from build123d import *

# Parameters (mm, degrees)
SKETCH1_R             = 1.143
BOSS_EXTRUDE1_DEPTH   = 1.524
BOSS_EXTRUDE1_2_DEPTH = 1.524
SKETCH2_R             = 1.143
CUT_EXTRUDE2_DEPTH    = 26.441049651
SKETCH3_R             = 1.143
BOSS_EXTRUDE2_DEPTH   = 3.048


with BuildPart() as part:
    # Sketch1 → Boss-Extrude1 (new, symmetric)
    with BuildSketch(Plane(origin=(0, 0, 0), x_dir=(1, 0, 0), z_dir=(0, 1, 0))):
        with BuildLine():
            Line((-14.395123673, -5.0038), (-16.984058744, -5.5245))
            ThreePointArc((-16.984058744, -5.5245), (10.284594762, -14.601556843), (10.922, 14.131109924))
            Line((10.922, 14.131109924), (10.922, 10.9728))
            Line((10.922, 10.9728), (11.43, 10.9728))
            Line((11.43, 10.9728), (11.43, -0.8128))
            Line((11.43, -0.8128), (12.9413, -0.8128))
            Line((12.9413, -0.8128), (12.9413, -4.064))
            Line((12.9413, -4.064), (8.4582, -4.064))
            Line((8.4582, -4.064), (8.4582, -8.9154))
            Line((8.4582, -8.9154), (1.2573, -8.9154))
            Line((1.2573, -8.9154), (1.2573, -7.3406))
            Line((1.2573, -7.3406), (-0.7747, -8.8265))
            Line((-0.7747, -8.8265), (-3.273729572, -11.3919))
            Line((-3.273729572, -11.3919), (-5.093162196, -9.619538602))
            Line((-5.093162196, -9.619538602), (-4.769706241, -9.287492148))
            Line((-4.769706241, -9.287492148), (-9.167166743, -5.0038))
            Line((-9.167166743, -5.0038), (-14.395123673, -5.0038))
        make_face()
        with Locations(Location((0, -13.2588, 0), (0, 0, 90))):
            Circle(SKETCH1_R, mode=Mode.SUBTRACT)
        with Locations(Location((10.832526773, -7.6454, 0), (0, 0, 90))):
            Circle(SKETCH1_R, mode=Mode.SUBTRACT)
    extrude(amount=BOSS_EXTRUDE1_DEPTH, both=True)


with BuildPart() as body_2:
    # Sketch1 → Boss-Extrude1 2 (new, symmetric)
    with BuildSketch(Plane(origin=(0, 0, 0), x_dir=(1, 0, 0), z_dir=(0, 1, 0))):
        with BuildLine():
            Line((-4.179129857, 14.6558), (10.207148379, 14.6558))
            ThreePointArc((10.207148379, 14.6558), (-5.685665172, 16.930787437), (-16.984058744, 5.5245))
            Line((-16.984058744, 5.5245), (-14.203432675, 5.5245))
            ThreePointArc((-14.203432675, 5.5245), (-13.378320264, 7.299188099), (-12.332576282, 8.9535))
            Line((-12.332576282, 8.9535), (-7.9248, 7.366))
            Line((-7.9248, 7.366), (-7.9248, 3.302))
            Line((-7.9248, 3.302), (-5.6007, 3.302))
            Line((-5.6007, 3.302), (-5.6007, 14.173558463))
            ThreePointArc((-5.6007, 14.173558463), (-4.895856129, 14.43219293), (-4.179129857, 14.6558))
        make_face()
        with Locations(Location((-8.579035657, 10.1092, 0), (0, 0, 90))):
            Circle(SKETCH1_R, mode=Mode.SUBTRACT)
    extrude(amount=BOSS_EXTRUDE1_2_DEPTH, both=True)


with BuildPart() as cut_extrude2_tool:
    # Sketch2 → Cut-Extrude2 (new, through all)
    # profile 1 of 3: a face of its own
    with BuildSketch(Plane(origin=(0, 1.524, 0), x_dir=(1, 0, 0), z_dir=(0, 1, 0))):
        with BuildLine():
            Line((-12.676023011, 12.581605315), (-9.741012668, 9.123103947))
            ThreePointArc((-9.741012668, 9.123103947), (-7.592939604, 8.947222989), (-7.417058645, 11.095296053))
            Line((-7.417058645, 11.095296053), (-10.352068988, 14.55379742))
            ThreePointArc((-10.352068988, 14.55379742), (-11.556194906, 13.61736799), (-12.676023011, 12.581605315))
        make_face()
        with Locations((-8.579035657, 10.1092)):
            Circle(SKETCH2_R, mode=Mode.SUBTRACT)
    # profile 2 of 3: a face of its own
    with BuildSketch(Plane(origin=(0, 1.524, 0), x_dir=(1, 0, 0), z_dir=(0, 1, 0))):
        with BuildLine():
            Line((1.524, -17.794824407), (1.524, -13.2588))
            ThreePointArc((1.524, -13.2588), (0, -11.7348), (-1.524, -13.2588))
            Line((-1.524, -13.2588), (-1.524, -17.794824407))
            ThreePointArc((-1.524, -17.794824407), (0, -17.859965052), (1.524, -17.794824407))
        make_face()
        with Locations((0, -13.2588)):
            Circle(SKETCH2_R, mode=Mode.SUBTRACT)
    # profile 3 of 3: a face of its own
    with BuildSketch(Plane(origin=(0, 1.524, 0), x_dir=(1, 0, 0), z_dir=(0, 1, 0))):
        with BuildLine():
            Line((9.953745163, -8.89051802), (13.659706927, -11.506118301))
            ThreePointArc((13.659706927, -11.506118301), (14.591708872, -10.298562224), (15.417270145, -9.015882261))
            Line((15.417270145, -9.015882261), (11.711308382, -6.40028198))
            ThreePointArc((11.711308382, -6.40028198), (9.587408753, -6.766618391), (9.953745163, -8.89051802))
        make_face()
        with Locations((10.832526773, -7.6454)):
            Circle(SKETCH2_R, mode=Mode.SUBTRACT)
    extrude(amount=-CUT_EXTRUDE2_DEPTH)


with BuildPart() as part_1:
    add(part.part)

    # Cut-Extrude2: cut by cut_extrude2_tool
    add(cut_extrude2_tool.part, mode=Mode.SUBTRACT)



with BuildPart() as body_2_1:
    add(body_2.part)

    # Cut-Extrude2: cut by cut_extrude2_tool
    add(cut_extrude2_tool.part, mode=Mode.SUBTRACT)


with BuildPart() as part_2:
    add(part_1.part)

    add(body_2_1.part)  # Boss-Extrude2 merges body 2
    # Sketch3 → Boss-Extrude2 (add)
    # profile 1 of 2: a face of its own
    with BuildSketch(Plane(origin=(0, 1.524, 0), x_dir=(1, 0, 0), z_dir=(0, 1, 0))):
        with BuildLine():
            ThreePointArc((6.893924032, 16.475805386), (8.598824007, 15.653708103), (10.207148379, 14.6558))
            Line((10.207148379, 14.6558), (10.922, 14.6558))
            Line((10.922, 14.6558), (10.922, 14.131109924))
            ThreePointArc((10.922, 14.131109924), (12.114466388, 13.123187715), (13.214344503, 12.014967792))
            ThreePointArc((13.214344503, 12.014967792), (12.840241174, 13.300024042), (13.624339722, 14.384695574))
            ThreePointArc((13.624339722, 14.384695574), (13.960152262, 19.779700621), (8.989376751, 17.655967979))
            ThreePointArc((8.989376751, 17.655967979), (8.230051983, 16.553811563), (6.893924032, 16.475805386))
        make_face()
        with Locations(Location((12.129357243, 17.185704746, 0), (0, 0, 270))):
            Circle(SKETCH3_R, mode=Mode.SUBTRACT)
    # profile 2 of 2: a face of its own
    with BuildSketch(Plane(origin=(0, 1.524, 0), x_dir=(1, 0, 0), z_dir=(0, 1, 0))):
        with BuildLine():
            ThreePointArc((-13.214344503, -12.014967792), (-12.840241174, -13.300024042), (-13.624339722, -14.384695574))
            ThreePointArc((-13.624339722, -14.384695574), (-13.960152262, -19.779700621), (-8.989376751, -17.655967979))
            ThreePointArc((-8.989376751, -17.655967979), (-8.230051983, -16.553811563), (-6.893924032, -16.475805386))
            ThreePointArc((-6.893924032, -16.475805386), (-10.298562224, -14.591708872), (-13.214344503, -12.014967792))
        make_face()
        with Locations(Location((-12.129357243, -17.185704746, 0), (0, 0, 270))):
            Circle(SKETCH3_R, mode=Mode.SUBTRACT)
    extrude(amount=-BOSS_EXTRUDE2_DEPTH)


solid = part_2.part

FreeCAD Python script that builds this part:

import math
import FreeCAD as App
import Part
import Sketcher

V = App.Vector
Q = App.Units.Quantity

doc = App.newDocument("Part")
body = doc.addObject("PartDesign::Body", "Body")

sketch1 = body.newObject("Sketcher::SketchObject", "Sketch")
sketch1.AttachmentSupport = (doc.getObject("XZ_Plane"), [""])
sketch1.MapMode = "FlatFace"
sketch1.addGeometry([
    Part.LineSegment(V(-14.4, 5, 0), V(-16.98, 5.52, 0)),
    Part.ArcOfCircle(Part.Circle(V(0, 0, 0), V(0, 0, 1), 17.86), math.radians(-52), math.radians(162)),
    Part.LineSegment(V(10.92, -14.13, 0), V(10.92, -10.97, 0)),
    Part.LineSegment(V(10.92, -10.97, 0), V(11.43, -10.97, 0)),
    Part.LineSegment(V(11.43, -10.97, 0), V(11.43, 0.81, 0)),
    Part.LineSegment(V(11.43, 0.81, 0), V(12.94, 0.81, 0)),
    Part.LineSegment(V(12.94, 0.81, 0), V(12.94, 4.06, 0)),
    Part.LineSegment(V(12.94, 4.06, 0), V(8.46, 4.06, 0)),
    Part.LineSegment(V(8.46, 4.06, 0), V(8.46, 8.92, 0)),
    Part.LineSegment(V(8.46, 8.92, 0), V(1.26, 8.92, 0)),
    Part.LineSegment(V(1.26, 8.92, 0), V(1.26, 7.34, 0)),
    Part.LineSegment(V(1.26, 7.34, 0), V(-0.77, 8.83, 0)),
    Part.LineSegment(V(-0.77, 8.83, 0), V(-3.27, 11.39, 0)),
    Part.LineSegment(V(-3.27, 11.39, 0), V(-5.09, 9.62, 0)),
    Part.LineSegment(V(-5.09, 9.62, 0), V(-4.77, 9.29, 0)),
    Part.LineSegment(V(-4.77, 9.29, 0), V(-9.17, 5, 0)),
    Part.LineSegment(V(-9.17, 5, 0), V(-14.4, 5, 0)),
    Part.Circle(V(0, 13.26, 0), V(0, 0, 1), 1.14),
    Part.Circle(V(10.83, 7.65, 0), V(0, 0, 1), 1.14),
], False)
sketch1.addConstraint([
    Sketcher.Constraint("Coincident", 0, 2, 1, 2),
    Sketcher.Constraint("Coincident", 1, 1, 2, 1),
    Sketcher.Constraint("Coincident", 2, 2, 3, 1),
    Sketcher.Constraint("Coincident", 3, 2, 4, 1),
    Sketcher.Constraint("Coincident", 4, 2, 5, 1),
    Sketcher.Constraint("Coincident", 5, 2, 6, 1),
    Sketcher.Constraint("Coincident", 6, 2, 7, 1),
    Sketcher.Constraint("Coincident", 7, 2, 8, 1),
    Sketcher.Constraint("Coincident", 8, 2, 9, 1),
    Sketcher.Constraint("Coincident", 9, 2, 10, 1),
    Sketcher.Constraint("Coincident", 10, 2, 11, 1),
    Sketcher.Constraint("Coincident", 11, 2, 12, 1),
    Sketcher.Constraint("Coincident", 12, 2, 13, 1),
    Sketcher.Constraint("Coincident", 13, 2, 14, 1),
    Sketcher.Constraint("Coincident", 14, 2, 15, 1),
    Sketcher.Constraint("Coincident", 15, 2, 16, 1),
    Sketcher.Constraint("Coincident", 16, 2, 0, 1),
    Sketcher.Constraint("Vertical", 2),
    Sketcher.Constraint("Horizontal", 3),
    Sketcher.Constraint("Vertical", 4),
    Sketcher.Constraint("Horizontal", 5),
    Sketcher.Constraint("Vertical", 6),
    Sketcher.Constraint("Horizontal", 7),
    Sketcher.Constraint("Vertical", 8),
    Sketcher.Constraint("Horizontal", 9),
    Sketcher.Constraint("Vertical", 10),
    Sketcher.Constraint("Horizontal", 16),
    Sketcher.Constraint("Coincident", 1, 3, -1, 1),
    Sketcher.Constraint("Equal", 17, 18),
    Sketcher.Constraint("PointOnObject", 17, 3, -2),
    Sketcher.Constraint("Perpendicular", 12, 13),
    Sketcher.Constraint("Perpendicular", 13, 14),
    Sketcher.Constraint("Perpendicular", 14, 15),
    Sketcher.Constraint("Diameter", 17, Q("0.09 in")),
    Sketcher.Constraint("Distance", 13, Q("0.1 in")),
    Sketcher.Constraint("DistanceX", 3, 1, 3, 2, Q("0.02 in")),
    Sketcher.Constraint("DistanceY", 4, 1, 4, 2, Q("0.464 in")),
    Sketcher.Constraint("DistanceY", 6, 1, 6, 2, Q("0.128 in")),
    Sketcher.Constraint("DistanceY", 8, 1, 8, 2, Q("0.191 in")),
    Sketcher.Constraint("DistanceY", 10, 2, 10, 1, Q("0.062 in")),
    Sketcher.Constraint("DistanceX", -1, 1, 1, 1, Q("0.43 in")),
    Sketcher.Constraint("DistanceY", -1, 1, 6, 2, Q("0.16 in")),
    Sketcher.Constraint("DistanceY", 18, 3, 8, 2, Q("0.05 in")),
    Sketcher.Constraint("DistanceX", 11, 2, 9, 2, Q("0.08 in")),
    Sketcher.Constraint("Distance", 12, Q("0.141 in")),
    Sketcher.Constraint("DistanceX", 5, 1, 5, 2, Q("0.0595 in")),
    Sketcher.Constraint("DistanceX", 7, 2, 7, 1, Q("0.1765 in")),
    Sketcher.Constraint("DistanceX", 9, 2, 9, 1, Q("0.2835 in")),
    Sketcher.Constraint("DistanceY", -1, 1, 17, 3, Q("0.522 in")),
    Sketcher.Constraint("DistanceY", -1, 1, 15, 2, Q("0.197 in")),
    Sketcher.Constraint("DistanceY", 11, 2, 12, 2, Q("0.101 in")),
    Sketcher.Constraint("DistanceY", -1, 1, 0, 2, Q("0.2175 in")),
    Sketcher.Constraint("DistanceY", -1, 1, 11, 2, Q("0.3475 in")),
    Sketcher.Constraint("Radius", 1, Q("17.859965 mm")),
    Sketcher.Constraint("Distance", 0, Q("2.640779 mm")),
    Sketcher.Constraint("Distance", 14, Q("0.46355 mm")),
    Sketcher.Constraint("DistanceX", -1, 1, 18, 3, Q("10.832527 mm")),
])
pad1 = body.newObject("PartDesign::Pad", "Pad")
pad1.Profile = sketch1
pad1.Length = Q("0.12 in")
pad1.Midplane = True
body2 = doc.addObject("PartDesign::Body", "Body001")

sketch2 = body2.newObject("Sketcher::SketchObject", "Sketch001")
sketch2.AttachmentSupport = (doc.getObject("XZ_Plane001"), [""])
sketch2.MapMode = "FlatFace"
sketch2.addGeometry([
    Part.LineSegment(V(-4.2, -14.7, 0), V(10.2, -14.7, 0)),
    Part.ArcOfCircle(Part.Circle(V(0, 0, 0), V(0, 0, 1), 17.9), math.radians(-162), math.radians(-55)),
    Part.LineSegment(V(-17, -5.5, 0), V(-14.2, -5.5, 0)),
    Part.ArcOfCircle(Part.Circle(V(0, 0, 0), V(0, 0, 1), 15.2), math.radians(-158.75), math.radians(-144.02)),
    Part.LineSegment(V(-12.3, -9, 0), V(-7.9, -7.4, 0)),
    Part.LineSegment(V(-7.9, -7.4, 0), V(-7.9, -3.3, 0)),
    Part.LineSegment(V(-7.9, -3.3, 0), V(-5.6, -3.3, 0)),
    Part.LineSegment(V(-5.6, -3.3, 0), V(-5.6, -14.2, 0)),
    Part.ArcOfCircle(Part.Circle(V(0, 0, 0), V(0, 0, 1), 15.2), math.radians(-111.56), math.radians(-105.92)),
    Part.Circle(V(-8.6, -10.1, 0), V(0, 0, 1), 1.1),
], False)
sketch2.addConstraint([
    Sketcher.Constraint("Coincident", 0, 2, 1, 2),
    Sketcher.Constraint("Coincident", 1, 1, 2, 1),
    Sketcher.Constraint("Coincident", 2, 2, 3, 1),
    Sketcher.Constraint("Coincident", 3, 2, 4, 1),
    Sketcher.Constraint("Coincident", 4, 2, 5, 1),
    Sketcher.Constraint("Coincident", 5, 2, 6, 1),
    Sketcher.Constraint("Coincident", 6, 2, 7, 1),
    Sketcher.Constraint("Coincident", 7, 2, 8, 1),
    Sketcher.Constraint("Coincident", 8, 2, 0, 1),
    Sketcher.Constraint("Horizontal", 0),
    Sketcher.Constraint("Horizontal", 2),
    Sketcher.Constraint("Vertical", 5),
    Sketcher.Constraint("Horizontal", 6),
    Sketcher.Constraint("Vertical", 7),
    Sketcher.Constraint("Coincident", 1, 3, -1, 1),
    Sketcher.Constraint("Coincident", 3, 3, -1, 1),
    Sketcher.Constraint("Coincident", 8, 3, -1, 1),
    Sketcher.Constraint("Equal", 3, 8),
    Sketcher.Constraint("Radius", 3, Q("0.6 in")),
    Sketcher.Constraint("Diameter", 9, Q("0.09 in")),
    Sketcher.Constraint("DistanceY", 5, 1, 5, 2, Q("0.16 in")),
    Sketcher.Constraint("DistanceY", 4, 2, -1, 1, Q("0.29 in")),
    Sketcher.Constraint("DistanceX", 6, 1, 6, 2, Q("0.0915 in")),
    Sketcher.Constraint("DistanceY", 9, 3, -1, 1, Q("0.398 in")),
    Sketcher.Constraint("DistanceY", 0, 2, -1, 1, Q("0.577 in")),
    Sketcher.Constraint("DistanceX", 4, 2, -1, 1, Q("0.312 in")),
    Sketcher.Constraint("DistanceY", 3, 2, 2, 2, Q("0.135 in")),
    Sketcher.Constraint("DistanceY", 3, 2, 4, 2, Q("0.0625 in")),
    Sketcher.Constraint("Radius", 1, Q("17.859965 mm")),
    Sketcher.Constraint("DistanceX", 3, 2, 9, 3, Q("3.753541 mm")),
])
pad2 = body2.newObject("PartDesign::Pad", "Pad001")
pad2.Profile = sketch2
pad2.Length = Q("0.12 in")
pad2.Midplane = True
body3 = doc.addObject("PartDesign::Body", "Body002")
body3.AllowCompound = True

sketch3 = body3.newObject("Sketcher::SketchObject", "Sketch002")
sketch3.AttachmentSupport = (doc.getObject("XZ_Plane002"), [""])
sketch3.MapMode = "FlatFace"
sketch3.AttachmentOffset = App.Placement(V(0, 0, -0.06 * 25.4), App.Rotation())
sketch3.addGeometry([
    Part.LineSegment(V(-12.7, -12.6, 0), V(-9.7, -9.1, 0)),
    Part.ArcOfCircle(Part.Circle(V(-8.6, -10.1, 0), V(0, 0, 1), 1.5), math.radians(-40), math.radians(140)),
    Part.LineSegment(V(-7.4, -11.1, 0), V(-10.4, -14.6, 0)),
    Part.ArcOfCircle(Part.Circle(V(0, 0, 0), V(0, 0, 1), 17.9), math.radians(-135.21), math.radians(-125.42)),
    Part.Circle(V(-8.6, -10.1, 0), V(0, 0, 1), 1.1),
    Part.LineSegment(V(1.5, 17.8, 0), V(1.5, 13.3, 0)),
    Part.ArcOfCircle(Part.Circle(V(0, 13.3, 0), V(0, 0, 1), 1.5), math.radians(180), math.radians(360)),
    Part.LineSegment(V(-1.5, 13.3, 0), V(-1.5, 17.8, 0)),
    Part.ArcOfCircle(Part.Circle(V(0, 0, 0), V(0, 0, 1), 17.9), math.radians(85.1), math.radians(94.9)),
    Part.Circle(V(0, 13.3, 0), V(0, 0, 1), 1.1),
    Part.LineSegment(V(10, 8.9, 0), V(13.7, 11.5, 0)),
    Part.ArcOfCircle(Part.Circle(V(0, 0, 0), V(0, 0, 1), 17.9), math.radians(30.32), math.radians(40.11)),
    Part.LineSegment(V(15.4, 9, 0), V(11.7, 6.4, 0)),
    Part.ArcOfCircle(Part.Circle(V(10.8, 7.6, 0), V(0, 0, 1), 1.5), math.radians(125), math.radians(305)),
    Part.Circle(V(10.8, 7.6, 0), V(0, 0, 1), 1.1),
], False)
sketch3.addConstraint([
    Sketcher.Constraint("Tangent", 0, 2, 1, 2),
    Sketcher.Constraint("Tangent", 1, 1, 2, 1),
    Sketcher.Constraint("Coincident", 2, 2, 3, 2),
    Sketcher.Constraint("Coincident", 3, 1, 0, 1),
    Sketcher.Constraint("Tangent", 5, 2, 6, 2),
    Sketcher.Constraint("Tangent", 6, 1, 7, 1),
    Sketcher.Constraint("Coincident", 7, 2, 8, 2),
    Sketcher.Constraint("Coincident", 8, 1, 5, 1),
    Sketcher.Constraint("Coincident", 10, 2, 11, 2),
    Sketcher.Constraint("Coincident", 11, 1, 12, 1),
    Sketcher.Constraint("Tangent", 12, 2, 13, 2),
    Sketcher.Constraint("Tangent", 13, 1, 10, 1),
    Sketcher.Constraint("Vertical", 5),
    Sketcher.Constraint("Vertical", 7),
    Sketcher.Constraint("Coincident", 3, 3, -1, 1),
    Sketcher.Constraint("Coincident", 8, 3, -1, 1),
    Sketcher.Constraint("Coincident", 11, 3, -1, 1),
    Sketcher.Constraint("Coincident", 4, 3, 1, 3),
    Sketcher.Constraint("Coincident", 9, 3, 6, 3),
    Sketcher.Constraint("Coincident", 14, 3, 13, 3),
    Sketcher.Constraint("Equal", 1, 6),
    Sketcher.Constraint("Equal", 3, 8),
    Sketcher.Constraint("Equal", 4, 9),
    Sketcher.Constraint("Equal", 8, 11),
    Sketcher.Constraint("Equal", 6, 13),
    Sketcher.Constraint("Equal", 9, 14),
    Sketcher.Constraint("PointOnObject", 6, 3, -2),
    Sketcher.Constraint("Parallel", 0, 2),
    Sketcher.Constraint("Parallel", 10, 12),
    Sketcher.Constraint("Equal", 0, 2),
    Sketcher.Constraint("Equal", 2, 10),
    Sketcher.Constraint("Equal", 10, 12),
    Sketcher.Constraint("Diameter", 4, Q("0.09 in")),
    Sketcher.Constraint("Radius", 1, Q("0.06 in")),
    Sketcher.Constraint("DistanceY", 4, 3, 6, 3, Q("0.92 in")),
    Sketcher.Constraint("DistanceY", 1, 3, -1, 1, Q("0.398 in")),
    Sketcher.Constraint("DistanceY", -1, 1, 13, 3, Q("0.301 in")),
    Sketcher.Constraint("Radius", 3, Q("17.859965 mm")),
    Sketcher.Constraint("DistanceY", 2, 2, 1, 1, Q("3.458501 mm")),
])
pad3 = body3.newObject("PartDesign::Pad", "Pad002")
pad3.Profile = sketch3
pad3.Length = 26.44105
doc.recompute()

body4 = doc.addObject("PartDesign::Body", "Body003")
body4.BaseFeature = body3
boolean = body.newObject("PartDesign::Boolean", "Boolean")
boolean.Type = "Cut"
boolean.addObjects([body4])
doc.recompute()

boolean2 = body2.newObject("PartDesign::Boolean", "Boolean001")
boolean2.Type = "Cut"
boolean2.addObjects([body3])
body.AllowCompound = True
doc.recompute()

boolean3 = body.newObject("PartDesign::Boolean", "Boolean002")
boolean3.Type = "Fuse"
boolean3.addObjects([body2])

sketch4 = body.newObject("Sketcher::SketchObject", "Sketch003")
sketch4.AttachmentSupport = (doc.getObject("XZ_Plane"), [""])
sketch4.MapMode = "FlatFace"
sketch4.AttachmentOffset = App.Placement(V(0, 0, -0.06 * 25.4), App.Rotation())
sketch4.addGeometry([
    Part.ArcOfCircle(Part.Circle(V(0, 0, 0), V(0, 0, 1), 17.9), math.radians(-67.29), math.radians(-55.14)),
    Part.LineSegment(V(10.2, -14.7, 0), V(10.9, -14.7, 0)),
    Part.LineSegment(V(10.9, -14.7, 0), V(10.9, -14.1, 0)),
    Part.ArcOfCircle(Part.Circle(V(0, 0, 0), V(0, 0, 1), 17.9), math.radians(-52.3), math.radians(-42.28)),
    Part.ArcOfCircle(Part.Circle(V(14.3, -13, 0), V(0, 0, 1), 1.5), math.radians(138), math.radians(242)),
    Part.ArcOfCircle(Part.Circle(V(12.1, -17.2, 0), V(0, 0, 1), 3.2), math.radians(-171), math.radians(62)),
    Part.ArcOfCircle(Part.Circle(V(7.5, -17.9, 0), V(0, 0, 1), 1.5), math.radians(9), math.radians(113)),
    Part.Circle(V(12.1, -17.2, 0), V(0, 0, 1), 1.1),
    Part.ArcOfCircle(Part.Circle(V(-14.3, 13, 0), V(0, 0, 1), 1.5), math.radians(-42), math.radians(62)),
    Part.ArcOfCircle(Part.Circle(V(-12.1, 17.2, 0), V(0, 0, 1), 3.2), math.radians(9), math.radians(242)),
    Part.ArcOfCircle(Part.Circle(V(-7.5, 17.9, 0), V(0, 0, 1), 1.5), math.radians(-171), math.radians(-67)),
    Part.ArcOfCircle(Part.Circle(V(0, 0, 0), V(0, 0, 1), 17.9), math.radians(113), math.radians(138)),
    Part.Circle(V(-12.1, 17.2, 0), V(0, 0, 1), 1.1),
], False)
sketch4.addConstraint([
    Sketcher.Constraint("Coincident", 0, 2, 1, 1),
    Sketcher.Constraint("Coincident", 1, 2, 2, 1),
    Sketcher.Constraint("Coincident", 2, 2, 3, 1),
    Sketcher.Constraint("Tangent", 3, 2, 4, 1),
    Sketcher.Constraint("Tangent", 4, 2, 5, 2),
    Sketcher.Constraint("Tangent", 5, 1, 6, 1),
    Sketcher.Constraint("Tangent", 6, 2, 0, 1),
    Sketcher.Constraint("Tangent", 8, 2, 9, 2),
    Sketcher.Constraint("Tangent", 9, 1, 10, 1),
    Sketcher.Constraint("Tangent", 10, 2, 11, 1),
    Sketcher.Constraint("Tangent", 11, 2, 8, 1),
    Sketcher.Constraint("Horizontal", 1),
    Sketcher.Constraint("Vertical", 2),
    Sketcher.Constraint("Coincident", 0, 3, -1, 1),
    Sketcher.Constraint("Coincident", 3, 3, -1, 1),
    Sketcher.Constraint("Coincident", 11, 3, -1, 1),
    Sketcher.Constraint("Coincident", 7, 3, 5, 3),
    Sketcher.Constraint("Coincident", 12, 3, 9, 3),
    Sketcher.Constraint("Equal", 0, 3),
    Sketcher.Constraint("Equal", 4, 6),
    Sketcher.Constraint("Equal", 6, 8),
    Sketcher.Constraint("Equal", 5, 9),
    Sketcher.Constraint("Equal", 8, 10),
    Sketcher.Constraint("Equal", 3, 11),
    Sketcher.Constraint("Equal", 7, 12),
    Sketcher.Constraint("Symmetric", 5, 3, 9, 3, -1, 1),
    Sketcher.Constraint("Diameter", 7, Q("0.09 in")),
    Sketcher.Constraint("Radius", 4, Q("0.06 in")),
    Sketcher.Constraint("Radius", 5, Q("0.125 in")),
    Sketcher.Constraint("DistanceX", -1, 1, 1, 2, Q("0.43 in")),
    Sketcher.Constraint("DistanceY", 0, 2, -1, 1, Q("0.577 in")),
    Sketcher.Constraint("Radius", 0, Q("17.859965 mm")),
    Sketcher.Constraint("DistanceY", 6, 3, 9, 3, Q("35.067399 mm")),
    Sketcher.Constraint("DistanceY", 2, 2, 4, 3, Q("1.090899 mm")),
])
pad4 = body.newObject("PartDesign::Pad", "Pad003")
pad4.Profile = sketch4
pad4.Length = Q("0.12 in")

doc.recompute()
